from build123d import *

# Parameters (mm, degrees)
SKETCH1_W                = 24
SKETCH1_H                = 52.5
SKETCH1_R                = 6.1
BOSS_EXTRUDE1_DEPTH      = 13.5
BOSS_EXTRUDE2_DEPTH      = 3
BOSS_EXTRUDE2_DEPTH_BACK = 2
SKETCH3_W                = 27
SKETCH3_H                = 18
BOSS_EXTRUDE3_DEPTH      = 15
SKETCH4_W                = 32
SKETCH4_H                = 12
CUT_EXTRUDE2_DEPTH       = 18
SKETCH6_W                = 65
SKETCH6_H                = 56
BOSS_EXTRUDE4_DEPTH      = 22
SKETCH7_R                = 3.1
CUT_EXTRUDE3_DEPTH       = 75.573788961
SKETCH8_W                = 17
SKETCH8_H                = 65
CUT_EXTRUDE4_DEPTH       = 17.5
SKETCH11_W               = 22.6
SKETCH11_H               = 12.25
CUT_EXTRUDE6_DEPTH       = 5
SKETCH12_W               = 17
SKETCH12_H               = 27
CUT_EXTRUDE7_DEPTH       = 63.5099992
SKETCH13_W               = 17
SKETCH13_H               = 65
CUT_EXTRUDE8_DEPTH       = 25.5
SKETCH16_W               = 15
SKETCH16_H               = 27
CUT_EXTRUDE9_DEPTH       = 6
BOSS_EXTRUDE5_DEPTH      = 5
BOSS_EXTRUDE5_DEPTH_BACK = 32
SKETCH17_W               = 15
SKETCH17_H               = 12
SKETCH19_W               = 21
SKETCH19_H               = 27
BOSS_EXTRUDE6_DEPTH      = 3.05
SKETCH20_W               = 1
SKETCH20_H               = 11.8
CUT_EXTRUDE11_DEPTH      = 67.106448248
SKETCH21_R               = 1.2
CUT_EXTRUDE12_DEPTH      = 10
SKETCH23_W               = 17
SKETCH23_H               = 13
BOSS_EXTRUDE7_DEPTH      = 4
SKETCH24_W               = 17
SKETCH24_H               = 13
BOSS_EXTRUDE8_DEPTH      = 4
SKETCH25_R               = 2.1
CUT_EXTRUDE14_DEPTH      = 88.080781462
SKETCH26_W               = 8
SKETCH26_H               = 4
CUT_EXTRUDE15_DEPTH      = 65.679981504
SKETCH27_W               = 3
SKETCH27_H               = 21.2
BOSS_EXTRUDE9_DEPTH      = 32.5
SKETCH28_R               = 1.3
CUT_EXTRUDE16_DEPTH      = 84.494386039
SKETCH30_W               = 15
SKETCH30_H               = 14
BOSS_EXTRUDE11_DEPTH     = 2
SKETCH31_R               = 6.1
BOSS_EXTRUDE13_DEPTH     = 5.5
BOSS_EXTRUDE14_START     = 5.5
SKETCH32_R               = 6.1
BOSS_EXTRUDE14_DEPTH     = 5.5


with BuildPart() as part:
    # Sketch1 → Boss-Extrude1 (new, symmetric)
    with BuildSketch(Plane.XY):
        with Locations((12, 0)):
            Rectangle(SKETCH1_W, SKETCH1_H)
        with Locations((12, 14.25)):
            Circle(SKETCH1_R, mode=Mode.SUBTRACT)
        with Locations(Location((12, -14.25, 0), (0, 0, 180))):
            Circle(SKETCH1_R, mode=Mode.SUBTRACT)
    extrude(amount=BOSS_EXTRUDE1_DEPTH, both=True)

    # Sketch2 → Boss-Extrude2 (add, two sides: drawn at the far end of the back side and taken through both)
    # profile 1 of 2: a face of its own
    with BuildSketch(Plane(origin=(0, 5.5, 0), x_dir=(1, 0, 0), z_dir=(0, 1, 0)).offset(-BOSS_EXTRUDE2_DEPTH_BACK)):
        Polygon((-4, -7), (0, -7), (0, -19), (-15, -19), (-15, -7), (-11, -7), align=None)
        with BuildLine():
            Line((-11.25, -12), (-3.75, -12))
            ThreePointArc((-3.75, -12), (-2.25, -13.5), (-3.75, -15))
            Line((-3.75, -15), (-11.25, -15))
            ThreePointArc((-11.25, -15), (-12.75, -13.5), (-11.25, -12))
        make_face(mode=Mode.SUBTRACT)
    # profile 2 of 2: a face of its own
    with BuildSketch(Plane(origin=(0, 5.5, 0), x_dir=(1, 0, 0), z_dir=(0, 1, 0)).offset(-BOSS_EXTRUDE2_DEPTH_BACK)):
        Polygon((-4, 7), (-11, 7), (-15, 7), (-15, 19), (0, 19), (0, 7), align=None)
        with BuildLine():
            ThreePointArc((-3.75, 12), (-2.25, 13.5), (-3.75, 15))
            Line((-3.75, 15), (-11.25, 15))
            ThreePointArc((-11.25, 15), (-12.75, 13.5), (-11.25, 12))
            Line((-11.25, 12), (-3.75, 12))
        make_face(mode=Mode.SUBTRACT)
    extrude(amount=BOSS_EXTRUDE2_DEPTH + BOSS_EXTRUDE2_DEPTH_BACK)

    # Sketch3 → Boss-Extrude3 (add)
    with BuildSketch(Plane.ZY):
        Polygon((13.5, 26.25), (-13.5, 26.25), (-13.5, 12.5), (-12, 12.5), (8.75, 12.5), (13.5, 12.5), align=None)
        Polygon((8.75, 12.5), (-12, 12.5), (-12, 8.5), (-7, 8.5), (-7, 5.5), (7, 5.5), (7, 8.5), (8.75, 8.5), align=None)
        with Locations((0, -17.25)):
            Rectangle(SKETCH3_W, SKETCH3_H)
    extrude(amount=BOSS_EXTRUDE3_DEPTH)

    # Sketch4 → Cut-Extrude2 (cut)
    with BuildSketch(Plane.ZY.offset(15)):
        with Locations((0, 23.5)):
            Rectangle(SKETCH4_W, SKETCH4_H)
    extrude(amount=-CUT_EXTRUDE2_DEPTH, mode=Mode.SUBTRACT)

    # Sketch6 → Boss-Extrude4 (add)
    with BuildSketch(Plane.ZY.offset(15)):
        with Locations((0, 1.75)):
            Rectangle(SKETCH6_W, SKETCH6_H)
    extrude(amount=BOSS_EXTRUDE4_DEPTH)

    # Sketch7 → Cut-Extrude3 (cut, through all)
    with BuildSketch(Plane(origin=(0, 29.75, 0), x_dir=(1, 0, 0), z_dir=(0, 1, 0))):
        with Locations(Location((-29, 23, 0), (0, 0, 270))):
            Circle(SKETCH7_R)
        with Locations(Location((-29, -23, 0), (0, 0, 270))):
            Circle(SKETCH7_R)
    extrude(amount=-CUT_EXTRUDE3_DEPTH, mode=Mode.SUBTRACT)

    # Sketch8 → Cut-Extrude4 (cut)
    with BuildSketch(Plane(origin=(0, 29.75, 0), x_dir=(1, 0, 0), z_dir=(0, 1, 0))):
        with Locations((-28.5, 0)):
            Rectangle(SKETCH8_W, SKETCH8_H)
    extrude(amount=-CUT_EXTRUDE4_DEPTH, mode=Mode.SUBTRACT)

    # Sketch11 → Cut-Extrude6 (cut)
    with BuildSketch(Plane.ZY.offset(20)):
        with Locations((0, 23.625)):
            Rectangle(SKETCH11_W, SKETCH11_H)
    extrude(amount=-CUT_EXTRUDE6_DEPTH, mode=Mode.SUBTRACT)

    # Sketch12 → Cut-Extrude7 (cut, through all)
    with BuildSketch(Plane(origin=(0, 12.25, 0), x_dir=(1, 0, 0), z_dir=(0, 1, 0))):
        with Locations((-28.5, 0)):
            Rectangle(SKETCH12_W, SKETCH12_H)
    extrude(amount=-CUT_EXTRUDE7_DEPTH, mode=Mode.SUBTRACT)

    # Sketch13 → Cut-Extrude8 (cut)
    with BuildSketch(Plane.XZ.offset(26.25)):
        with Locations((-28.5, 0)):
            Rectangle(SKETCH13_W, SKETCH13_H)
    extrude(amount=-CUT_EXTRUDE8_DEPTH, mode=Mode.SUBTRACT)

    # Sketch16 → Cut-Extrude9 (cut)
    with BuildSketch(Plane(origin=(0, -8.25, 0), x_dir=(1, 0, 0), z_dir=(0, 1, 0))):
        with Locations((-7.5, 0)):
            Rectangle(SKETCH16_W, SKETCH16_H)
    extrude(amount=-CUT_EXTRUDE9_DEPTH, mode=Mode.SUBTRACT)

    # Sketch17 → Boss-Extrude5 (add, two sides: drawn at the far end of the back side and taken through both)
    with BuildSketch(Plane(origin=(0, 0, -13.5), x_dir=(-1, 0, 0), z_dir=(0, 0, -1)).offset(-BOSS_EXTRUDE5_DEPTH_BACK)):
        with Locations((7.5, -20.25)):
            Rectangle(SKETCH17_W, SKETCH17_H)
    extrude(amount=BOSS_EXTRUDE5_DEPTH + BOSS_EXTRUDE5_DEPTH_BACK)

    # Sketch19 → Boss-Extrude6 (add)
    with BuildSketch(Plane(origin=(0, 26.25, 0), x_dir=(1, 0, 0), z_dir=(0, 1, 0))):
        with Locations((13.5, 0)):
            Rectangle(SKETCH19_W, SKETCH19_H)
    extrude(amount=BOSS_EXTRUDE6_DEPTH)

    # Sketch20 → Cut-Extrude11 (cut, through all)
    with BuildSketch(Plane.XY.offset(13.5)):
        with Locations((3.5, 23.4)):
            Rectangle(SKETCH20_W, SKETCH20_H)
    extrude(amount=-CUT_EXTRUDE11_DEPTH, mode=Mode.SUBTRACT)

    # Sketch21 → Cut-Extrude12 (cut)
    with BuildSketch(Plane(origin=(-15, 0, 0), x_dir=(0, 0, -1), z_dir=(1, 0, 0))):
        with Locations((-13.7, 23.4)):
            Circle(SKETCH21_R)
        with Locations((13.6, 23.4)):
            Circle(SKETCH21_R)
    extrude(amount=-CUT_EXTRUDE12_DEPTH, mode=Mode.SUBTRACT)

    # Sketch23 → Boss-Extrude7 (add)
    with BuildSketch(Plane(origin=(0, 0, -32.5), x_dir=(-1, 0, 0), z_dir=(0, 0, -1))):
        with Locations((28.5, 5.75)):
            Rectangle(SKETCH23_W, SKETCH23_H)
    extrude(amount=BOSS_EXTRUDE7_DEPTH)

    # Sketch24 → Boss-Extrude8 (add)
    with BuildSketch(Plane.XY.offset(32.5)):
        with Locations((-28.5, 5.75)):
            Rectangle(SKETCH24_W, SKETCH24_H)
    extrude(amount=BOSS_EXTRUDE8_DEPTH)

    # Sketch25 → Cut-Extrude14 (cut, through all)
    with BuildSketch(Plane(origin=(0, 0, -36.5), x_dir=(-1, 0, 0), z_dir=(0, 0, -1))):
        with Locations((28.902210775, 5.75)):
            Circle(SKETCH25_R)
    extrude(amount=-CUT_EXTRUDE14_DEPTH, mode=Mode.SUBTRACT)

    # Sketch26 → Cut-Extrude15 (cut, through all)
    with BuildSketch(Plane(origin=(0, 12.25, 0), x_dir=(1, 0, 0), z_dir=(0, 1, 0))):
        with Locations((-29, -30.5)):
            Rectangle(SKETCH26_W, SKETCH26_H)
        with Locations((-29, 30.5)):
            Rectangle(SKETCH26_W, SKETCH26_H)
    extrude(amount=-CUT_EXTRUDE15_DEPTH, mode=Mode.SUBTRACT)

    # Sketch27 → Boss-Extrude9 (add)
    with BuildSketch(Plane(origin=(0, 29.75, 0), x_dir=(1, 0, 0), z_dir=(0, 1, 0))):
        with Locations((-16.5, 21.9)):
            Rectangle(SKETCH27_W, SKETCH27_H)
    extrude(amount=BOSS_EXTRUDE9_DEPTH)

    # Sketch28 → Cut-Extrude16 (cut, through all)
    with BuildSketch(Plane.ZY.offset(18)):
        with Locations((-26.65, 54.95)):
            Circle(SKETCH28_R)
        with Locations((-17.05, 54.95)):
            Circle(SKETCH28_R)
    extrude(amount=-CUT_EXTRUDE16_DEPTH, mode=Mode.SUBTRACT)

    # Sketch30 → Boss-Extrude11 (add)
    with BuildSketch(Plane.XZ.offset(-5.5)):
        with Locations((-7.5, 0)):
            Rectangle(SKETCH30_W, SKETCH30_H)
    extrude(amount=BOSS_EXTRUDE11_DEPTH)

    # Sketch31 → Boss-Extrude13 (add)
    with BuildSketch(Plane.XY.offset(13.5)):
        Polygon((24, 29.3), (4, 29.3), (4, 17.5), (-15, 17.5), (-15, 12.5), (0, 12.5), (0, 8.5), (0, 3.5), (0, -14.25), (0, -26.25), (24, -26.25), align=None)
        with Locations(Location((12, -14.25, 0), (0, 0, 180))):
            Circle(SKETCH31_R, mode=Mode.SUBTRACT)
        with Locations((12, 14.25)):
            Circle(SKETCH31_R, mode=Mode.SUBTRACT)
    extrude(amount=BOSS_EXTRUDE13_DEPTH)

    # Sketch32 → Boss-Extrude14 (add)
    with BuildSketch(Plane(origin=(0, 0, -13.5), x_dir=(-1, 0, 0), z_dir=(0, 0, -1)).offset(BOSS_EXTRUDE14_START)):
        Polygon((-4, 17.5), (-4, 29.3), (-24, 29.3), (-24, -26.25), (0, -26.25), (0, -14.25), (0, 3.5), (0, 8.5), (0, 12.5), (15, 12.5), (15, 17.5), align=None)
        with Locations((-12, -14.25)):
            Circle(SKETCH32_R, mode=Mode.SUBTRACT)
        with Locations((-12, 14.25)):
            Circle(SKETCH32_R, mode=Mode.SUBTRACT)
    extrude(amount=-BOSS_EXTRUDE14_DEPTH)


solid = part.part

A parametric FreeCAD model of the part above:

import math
import FreeCAD as App
import Part
import Sketcher
from FreeCAD import Vector
Q = App.Units.Quantity


def add_polygon(sketch, points):
    """Adds a closed chain of lines whose ends are joined by coincident constraints."""
    first, n = sketch.GeometryCount, len(points)
    for a, b in zip(points, points[1:] + points[:1]):
        sketch.addGeometry(Part.LineSegment(App.Vector(*a, 0), App.Vector(*b, 0)), False)
    for i in range(n):
        sketch.addConstraint(Sketcher.Constraint("Coincident", first + i, 2, first + (i + 1) % n, 1))

doc = App.newDocument("Part")
body = doc.addObject("PartDesign::Body", "Body")

sketch1 = doc.addObject("Sketcher::SketchObject", "Sketch")
body.addObject(sketch1)
sketch1.AttachmentSupport = (doc.XY_Plane, [""])
sketch1.MapMode = "FlatFace"
add_polygon(sketch1, [(0, 26.25), (0, -26.25), (24, -26.25), (24, 26.25)])
sketch1.addGeometry(Part.Circle(Vector(12, -14.25, 0), Vector(0, 0, 1), 6.1), False)
sketch1.addGeometry(Part.Circle(Vector(12, 14.25, 0), Vector(0, 0, 1), 6.1), False)
sketch1.addConstraint([
    Sketcher.Constraint("Vertical", 0),
    Sketcher.Constraint("Horizontal", 1),
    Sketcher.Constraint("Vertical", 2),
    Sketcher.Constraint("Horizontal", 3),
    Sketcher.Constraint("Equal", 4, 5),
    Sketcher.Constraint("Symmetric", 0, 2, 3, 2, -1, 1),
    Sketcher.Constraint("Symmetric", 4, 3, 5, 3, -1),
    Sketcher.Constraint("Diameter", 4, Q("12.2 mm")),
    Sketcher.Constraint("DistanceX", 1, 1, 1, 2, Q("24 mm")),
    Sketcher.Constraint("DistanceY", 0, 2, 0, 1, Q("52.5 mm")),
    Sketcher.Constraint("DistanceX", -1, 1, 4, 3, Q("12 mm")),
    Sketcher.Constraint("DistanceY", 0, 2, 4, 3, Q("12 mm")),
])
pad1 = doc.addObject("PartDesign::Pad", "Pad")
body.addObject(pad1)
pad1.Profile = sketch1
pad1.Length = 27
pad1.Midplane = True

sketch2 = doc.addObject("Sketcher::SketchObject", "Sketch001")
body.addObject(sketch2)
sketch2.AttachmentSupport = (doc.XZ_Plane, [""])
sketch2.MapMode = "FlatFace"
sketch2.AttachmentOffset = App.Placement(Vector(0, 0, -5.5), App.Rotation())
add_polygon(sketch2, [(0, 7), (-15, 7), (-15, 19), (0, 19)])
sketch2.addGeometry(Part.LineSegment(Vector(-11.25, 12, 0), Vector(-3.75, 12, 0)), False)
sketch2.addGeometry(Part.ArcOfCircle(Part.Circle(Vector(-3.75, 13.5, 0), Vector(0, 0, 1), 1.5), math.radians(-90), math.radians(90)), False)
sketch2.addGeometry(Part.LineSegment(Vector(-3.75, 15, 0), Vector(-11.25, 15, 0)), False)
sketch2.addGeometry(Part.ArcOfCircle(Part.Circle(Vector(-11.25, 13.5, 0), Vector(0, 0, 1), 1.5), math.radians(90), math.radians(270)), False)
add_polygon(sketch2, [(-15, -7), (0, -7), (0, -19), (-15, -19)])
sketch2.addGeometry(Part.LineSegment(Vector(-3.75, -12, 0), Vector(-11.25, -12, 0)), False)
sketch2.addGeometry(Part.ArcOfCircle(Part.Circle(Vector(-11.25, -13.5, 0), Vector(0, 0, 1), 1.5), math.radians(90), math.radians(270)), False)
sketch2.addGeometry(Part.LineSegment(Vector(-11.25, -15, 0), Vector(-3.75, -15, 0)), False)
sketch2.addGeometry(Part.ArcOfCircle(Part.Circle(Vector(-3.75, -13.5, 0), Vector(0, 0, 1), 1.5), math.radians(-90), math.radians(90)), False)
sketch2.addConstraint([
    Sketcher.Constraint("Tangent", 4, 2, 5, 1),
    Sketcher.Constraint("Tangent", 5, 2, 6, 1),
    Sketcher.Constraint("Tangent", 6, 2, 7, 1),
    Sketcher.Constraint("Tangent", 7, 2, 4, 1),
    Sketcher.Constraint("Tangent", 12, 2, 13, 1),
    Sketcher.Constraint("Tangent", 13, 2, 14, 1),
    Sketcher.Constraint("Tangent", 14, 2, 15, 1),
    Sketcher.Constraint("Tangent", 15, 2, 12, 1),
    Sketcher.Constraint("Horizontal", 0),
    Sketcher.Constraint("Vertical", 1),
    Sketcher.Constraint("Horizontal", 2),
    Sketcher.Constraint("Vertical", 3),
    Sketcher.Constraint("Horizontal", 4),
    Sketcher.Constraint("Horizontal", 6),
    Sketcher.Constraint("Horizontal", 8),
    Sketcher.Constraint("Vertical", 9),
    Sketcher.Constraint("Horizontal", 10),
    Sketcher.Constraint("Vertical", 11),
    Sketcher.Constraint("Horizontal", 12),
    Sketcher.Constraint("Horizontal", 14),
    Sketcher.Constraint("Equal", 7, 13),
    Sketcher.Constraint("Symmetric", 3, 2, 8, 2, -1, 1),
    Sketcher.Constraint("Symmetric", 7, 3, 13, 3, -1),
    Sketcher.Constraint("Symmetric", 2, 2, 9, 2, -1),
    Sketcher.Constraint("Vertical", 5, 3, 15, 3),
    Sketcher.Constraint("Vertical", 1, 2, 10, 2),
    Sketcher.Constraint("Radius", 5, Q("1.5 mm")),
    Sketcher.Constraint("DistanceX", 0, 2, 0, 1, Q("15 mm")),
    Sketcher.Constraint("DistanceY", 1, 1, 1, 2, Q("12 mm")),
    Sketcher.Constraint("DistanceX", 4, 1, 4, 2, Q("7.5 mm")),
    Sketcher.Constraint("DistanceY", -1, 1, 0, 2, Q("7 mm")),
    Sketcher.Constraint("DistanceY", -1, 1, 4, 2, Q("12 mm")),
    Sketcher.Constraint("DistanceX", 5, 3, -1, 1, Q("3.75 mm")),
])
pad2 = doc.addObject("PartDesign::Pad", "Pad001")
body.addObject(pad2)
pad2.Profile = sketch2
pad2.Type = "TwoLengths"
pad2.Length = 3
pad2.Length2 = 2
pad2.Reversed = True

sketch3 = doc.addObject("Sketcher::SketchObject", "Sketch002")
body.addObject(sketch3)
sketch3.AttachmentSupport = (doc.YZ_Plane, [""])
sketch3.MapMode = "FlatFace"
add_polygon(sketch3, [(26.25, 13.5), (26.25, -13.5), (12.5, -13.5), (12.5, -12), (8.5, -12), (8.5, -7), (5.5, -7), (5.5, 7), (8.5, 7), (8.5, 8.75), (12.5, 8.75), (12.5, 13.5)])
add_polygon(sketch3, [(-8.25, -13.5), (-26.25, -13.5), (-26.25, 13.5), (-8.25, 13.5)])
sketch3.addConstraint([
    Sketcher.Constraint("Vertical", 0),
    Sketcher.Constraint("Horizontal", 1),
    Sketcher.Constraint("Vertical", 2),
    Sketcher.Constraint("Horizontal", 3),
    Sketcher.Constraint("Vertical", 4),
    Sketcher.Constraint("Horizontal", 5),
    Sketcher.Constraint("Vertical", 6),
    Sketcher.Constraint("Horizontal", 7),
    Sketcher.Constraint("Vertical", 8),
    Sketcher.Constraint("Horizontal", 9),
    Sketcher.Constraint("Vertical", 10),
    Sketcher.Constraint("Horizontal", 11),
    Sketcher.Constraint("Horizontal", 12),
    Sketcher.Constraint("Vertical", 13),
    Sketcher.Constraint("Horizontal", 14),
    Sketcher.Constraint("Vertical", 15),
    Sketcher.Constraint("Symmetric", 11, 2, 12, 2, -1, 1),
    Sketcher.Constraint("Symmetric", 4, 2, 7, 2, -1),
    Sketcher.Constraint("Symmetric", 1, 2, 10, 2, -1),
    Sketcher.Constraint("Horizontal", 11, 2, 13, 2),
    Sketcher.Constraint("DistanceX", 3, 2, 3, 1, Q("4 mm")),
    Sketcher.Constraint("DistanceX", 5, 2, 5, 1, Q("3 mm")),
    Sketcher.Constraint("DistanceX", 12, 2, 12, 1, Q("18 mm")),
    Sketcher.Constraint("DistanceY", 0, 2, 0, 1, Q("27 mm")),
    Sketcher.Constraint("DistanceY", 4, 1, 4, 2, Q("5 mm")),
    Sketcher.Constraint("DistanceY", 6, 1, 6, 2, Q("14 mm")),
    Sketcher.Constraint("DistanceX", 1, 2, 1, 1, Q("13.75 mm")),
    Sketcher.Constraint("DistanceY", 8, 1, 8, 2, Q("1.75 mm")),
    Sketcher.Constraint("DistanceX", -1, 1, 1, 2, Q("12.5 mm")),
])
pad3 = doc.addObject("PartDesign::Pad", "Pad002")
body.addObject(pad3)
pad3.Profile = sketch3
pad3.Length = 15
pad3.Reversed = True

sketch4 = doc.addObject("Sketcher::SketchObject", "Sketch003")
body.addObject(sketch4)
sketch4.AttachmentSupport = (doc.YZ_Plane, [""])
sketch4.MapMode = "FlatFace"
sketch4.AttachmentOffset = App.Placement(Vector(0, 0, -15), App.Rotation())
add_polygon(sketch4, [(29.5, -16), (17.5, -16), (17.5, 16), (29.5, 16)])
sketch4.addConstraint([
    Sketcher.Constraint("Horizontal", 0),
    Sketcher.Constraint("Vertical", 1),
    Sketcher.Constraint("Horizontal", 2),
    Sketcher.Constraint("Vertical", 3),
    Sketcher.Constraint("DistanceX", 0, 2, 0, 1, Q("12 mm")),
    Sketcher.Constraint("DistanceY", 1, 1, 1, 2, Q("32 mm")),
    Sketcher.Constraint("DistanceY", 0, 2, -1, 1, Q("16 mm")),
    Sketcher.Constraint("DistanceX", -1, 1, 0, 2, Q("17.5 mm")),
])
pocket1 = doc.addObject("PartDesign::Pocket", "Pocket")
body.addObject(pocket1)
pocket1.Profile = sketch4
pocket1.Length = 18
pocket1.Reversed = True

sketch5 = doc.addObject("Sketcher::SketchObject", "Sketch004")
body.addObject(sketch5)
sketch5.AttachmentSupport = (doc.YZ_Plane, [""])
sketch5.MapMode = "FlatFace"
sketch5.AttachmentOffset = App.Placement(Vector(0, 0, -15), App.Rotation())
add_polygon(sketch5, [(29.75, -32.5), (-26.25, -32.5), (-26.25, 32.5), (29.75, 32.5)])
sketch5.addConstraint([
    Sketcher.Constraint("Horizontal", 0),
    Sketcher.Constraint("Vertical", 1),
    Sketcher.Constraint("Horizontal", 2),
    Sketcher.Constraint("Vertical", 3),
    Sketcher.Constraint("DistanceX", 0, 2, 0, 1, Q("56 mm")),
    Sketcher.Constraint("DistanceY", 1, 1, 1, 2, Q("65 mm")),
    Sketcher.Constraint("DistanceY", 0, 2, -1, 1, Q("32.5 mm")),
    Sketcher.Constraint("DistanceX", 0, 2, -1, 1, Q("26.25 mm")),
])
pad4 = doc.addObject("PartDesign::Pad", "Pad003")
body.addObject(pad4)
pad4.Profile = sketch5
pad4.Length = 22
pad4.Reversed = True

sketch6 = doc.addObject("Sketcher::SketchObject", "Sketch005")
body.addObject(sketch6)
sketch6.AttachmentSupport = (doc.XZ_Plane, [""])
sketch6.MapMode = "FlatFace"
sketch6.AttachmentOffset = App.Placement(Vector(0, 0, -29.75), App.Rotation())
sketch6.addGeometry([
    Part.Circle(Vector(-29, -23, 0), Vector(0, 0, 1), 3.1),
    Part.Circle(Vector(-29, 23, 0), Vector(0, 0, 1), 3.1),
], False)
sketch6.addConstraint([
    Sketcher.Constraint("Equal", 0, 1),
    Sketcher.Constraint("Symmetric", 0, 3, 1, 3, -1),
    Sketcher.Constraint("Diameter", 0, Q("6.2 mm")),
    Sketcher.Constraint("DistanceX", 0, 3, -1, 1, Q("29 mm")),
    Sketcher.Constraint("DistanceY", 0, 3, -1, 1, Q("23 mm")),
])
pocket2 = doc.addObject("PartDesign::Pocket", "Pocket001")
body.addObject(pocket2)
pocket2.Profile = sketch6
pocket2.Type = "ThroughAll"
pocket2.Reversed = True

sketch7 = doc.addObject("Sketcher::SketchObject", "Sketch006")
body.addObject(sketch7)
sketch7.AttachmentSupport = (doc.XZ_Plane, [""])
sketch7.MapMode = "FlatFace"
sketch7.AttachmentOffset = App.Placement(Vector(0, 0, -29.75), App.Rotation())
add_polygon(sketch7, [(-37, -32.5), (-37, 32.5), (-20, 32.5), (-20, -32.5)])
sketch7.addConstraint([
    Sketcher.Constraint("Vertical", 0),
    Sketcher.Constraint("Horizontal", 1),
    Sketcher.Constraint("Vertical", 2),
    Sketcher.Constraint("Horizontal", 3),
    Sketcher.Constraint("DistanceX", 1, 1, 1, 2, Q("17 mm")),
    Sketcher.Constraint("DistanceY", 0, 1, 0, 2, Q("65 mm")),
    Sketcher.Constraint("DistanceX", 0, 2, -1, 1, Q("37 mm")),
    Sketcher.Constraint("DistanceY", -1, 1, 0, 2, Q("32.5 mm")),
])
pocket3 = doc.addObject("PartDesign::Pocket", "Pocket002")
body.addObject(pocket3)
pocket3.Profile = sketch7
pocket3.Length = 17.5
pocket3.Reversed = True

sketch8 = doc.addObject("Sketcher::SketchObject", "Sketch007")
body.addObject(sketch8)
sketch8.AttachmentSupport = (doc.YZ_Plane, [""])
sketch8.MapMode = "FlatFace"
sketch8.AttachmentOffset = App.Placement(Vector(0, 0, -20), App.Rotation())
add_polygon(sketch8, [(29.75, -11.3), (17.5, -11.3), (17.5, 11.3), (29.75, 11.3)])
sketch8.addConstraint([
    Sketcher.Constraint("Horizontal", 0),
    Sketcher.Constraint("Vertical", 1),
    Sketcher.Constraint("Horizontal", 2),
    Sketcher.Constraint("Vertical", 3),
    Sketcher.Constraint("DistanceY", 1, 1, 1, 2, Q("22.6 mm")),
    Sketcher.Constraint("DistanceX", 0, 2, 0, 1, Q("12.25 mm")),
    Sketcher.Constraint("DistanceX", -1, 1, 0, 2, Q("17.5 mm")),
    Sketcher.Constraint("DistanceY", 0, 2, -1, 1, Q("11.3 mm")),
])
pocket4 = doc.addObject("PartDesign::Pocket", "Pocket003")
body.addObject(pocket4)
pocket4.Profile = sketch8
pocket4.Length = 5
pocket4.Reversed = True

sketch9 = doc.addObject("Sketcher::SketchObject", "Sketch008")
body.addObject(sketch9)
sketch9.AttachmentSupport = (doc.XZ_Plane, [""])
sketch9.MapMode = "FlatFace"
sketch9.AttachmentOffset = App.Placement(Vector(0, 0, -12.25), App.Rotation())
add_polygon(sketch9, [(-37, -13.5), (-37, 13.5), (-20, 13.5), (-20, -13.5)])
sketch9.addConstraint([
    Sketcher.Constraint("Vertical", 0),
    Sketcher.Constraint("Horizontal", 1),
    Sketcher.Constraint("Vertical", 2),
    Sketcher.Constraint("Horizontal", 3),
    Sketcher.Constraint("DistanceX", 1, 1, 1, 2, Q("17 mm")),
    Sketcher.Constraint("DistanceY", 0, 1, 0, 2, Q("27 mm")),
    Sketcher.Constraint("DistanceX", 0, 2, -1, 1, Q("37 mm")),
    Sketcher.Constraint("DistanceY", -1, 1, 0, 2, Q("13.5 mm")),
])
pocket5 = doc.addObject("PartDesign::Pocket", "Pocket004")
body.addObject(pocket5)
pocket5.Profile = sketch9
pocket5.Type = "ThroughAll"
pocket5.Reversed = True

sketch10 = doc.addObject("Sketcher::SketchObject", "Sketch009")
body.addObject(sketch10)
sketch10.AttachmentSupport = (doc.XZ_Plane, [""])
sketch10.MapMode = "FlatFace"
sketch10.AttachmentOffset = App.Placement(Vector(0, 0, 26.25), App.Rotation())
add_polygon(sketch10, [(-37, 32.5), (-37, -32.5), (-20, -32.5), (-20, 32.5)])
sketch10.addConstraint([
    Sketcher.Constraint("Vertical", 0),
    Sketcher.Constraint("Horizontal", 1),
    Sketcher.Constraint("Vertical", 2),
    Sketcher.Constraint("Horizontal", 3),
    Sketcher.Constraint("DistanceX", 1, 1, 1, 2, Q("17 mm")),
    Sketcher.Constraint("DistanceY", 0, 2, 0, 1, Q("65 mm")),
    Sketcher.Constraint("DistanceX", 0, 2, -1, 1, Q("37 mm")),
    Sketcher.Constraint("DistanceY", 0, 2, -1, 1, Q("32.5 mm")),
])
pocket6 = doc.addObject("PartDesign::Pocket", "Pocket005")
body.addObject(pocket6)
pocket6.Profile = sketch10
pocket6.Length = 25.5

sketch11 = doc.addObject("Sketcher::SketchObject", "Sketch010")
body.addObject(sketch11)
sketch11.AttachmentSupport = (doc.XZ_Plane, [""])
sketch11.MapMode = "FlatFace"
sketch11.AttachmentOffset = App.Placement(Vector(0, 0, 8.25), App.Rotation())
add_polygon(sketch11, [(-15, -13.5), (-15, 13.5), (0, 13.5), (0, -13.5)])
sketch11.addConstraint([
    Sketcher.Constraint("Vertical", 0),
    Sketcher.Constraint("Horizontal", 1),
    Sketcher.Constraint("Vertical", 2),
    Sketcher.Constraint("Horizontal", 3),
    Sketcher.Constraint("Symmetric", 1, 2, 2, 2, -1, 1),
    Sketcher.Constraint("DistanceX", 1, 1, 1, 2, Q("15 mm")),
    Sketcher.Constraint("DistanceY", 0, 1, 0, 2, Q("27 mm")),
])
pocket7 = doc.addObject("PartDesign::Pocket", "Pocket006")
body.addObject(pocket7)
pocket7.Profile = sketch11
pocket7.Length = 6
pocket7.Reversed = True

sketch12 = doc.addObject("Sketcher::SketchObject", "Sketch011")
body.addObject(sketch12)
sketch12.AttachmentSupport = (doc.XY_Plane, [""])
sketch12.MapMode = "FlatFace"
sketch12.AttachmentOffset = App.Placement(Vector(0, 0, -13.5), App.Rotation())
add_polygon(sketch12, [(0, -14.25), (0, -26.25), (-15, -26.25), (-15, -14.25)])
sketch12.addConstraint([
    Sketcher.Constraint("Vertical", 0),
    Sketcher.Constraint("Horizontal", 1),
    Sketcher.Constraint("Vertical", 2),
    Sketcher.Constraint("Horizontal", 3),
    Sketcher.Constraint("PointOnObject", 0, 2, -2),
    Sketcher.Constraint("DistanceX", 1, 2, 1, 1, Q("15 mm")),
    Sketcher.Constraint("DistanceY", 0, 2, 0, 1, Q("12 mm")),
    Sketcher.Constraint("DistanceY", 0, 2, -1, 1, Q("26.25 mm")),
])
pad5 = doc.addObject("PartDesign::Pad", "Pad004")
body.addObject(pad5)
pad5.Profile = sketch12
pad5.Type = "TwoLengths"
pad5.Length = 5
pad5.Length2 = 32
pad5.Reversed = True

sketch13 = doc.addObject("Sketcher::SketchObject", "Sketch012")
body.addObject(sketch13)
sketch13.AttachmentSupport = (doc.XZ_Plane, [""])
sketch13.MapMode = "FlatFace"
sketch13.AttachmentOffset = App.Placement(Vector(0, 0, -26.25), App.Rotation())
add_polygon(sketch13, [(3, -13.5), (3, 13.5), (24, 13.5), (24, -13.5)])
sketch13.addConstraint([
    Sketcher.Constraint("Vertical", 0),
    Sketcher.Constraint("Horizontal", 1),
    Sketcher.Constraint("Vertical", 2),
    Sketcher.Constraint("Horizontal", 3),
    Sketcher.Constraint("DistanceX", 1, 1, 1, 2, Q("21 mm")),
    Sketcher.Constraint("DistanceY", 0, 1, 0, 2, Q("27 mm")),
    Sketcher.Constraint("DistanceX", -1, 1, 0, 2, Q("3 mm")),
    Sketcher.Constraint("DistanceY", -1, 1, 0, 2, Q("13.5 mm")),
])
pad6 = doc.addObject("PartDesign::Pad", "Pad005")
body.addObject(pad6)
pad6.Profile = sketch13
pad6.Length = 3.05
pad6.Reversed = True

sketch14 = doc.addObject("Sketcher::SketchObject", "Sketch013")
body.addObject(sketch14)
sketch14.AttachmentSupport = (doc.XY_Plane, [""])
sketch14.MapMode = "FlatFace"
sketch14.AttachmentOffset = App.Placement(Vector(0, 0, 13.5), App.Rotation())
add_polygon(sketch14, [(3, 29.3), (3, 17.5), (4, 17.5), (4, 29.3)])
sketch14.addConstraint([
    Sketcher.Constraint("Vertical", 0),
    Sketcher.Constraint("Horizontal", 1),
    Sketcher.Constraint("Vertical", 2),
    Sketcher.Constraint("Horizontal", 3),
    Sketcher.Constraint("DistanceX", 1, 1, 1, 2, Q("1 mm")),
    Sketcher.Constraint("DistanceY", 0, 2, 0, 1, Q("11.8 mm")),
    Sketcher.Constraint("DistanceX", -1, 1, 0, 2, Q("3 mm")),
    Sketcher.Constraint("DistanceY", -1, 1, 0, 2, Q("17.5 mm")),
])
pocket8 = doc.addObject("PartDesign::Pocket", "Pocket007")
body.addObject(pocket8)
pocket8.Profile = sketch14
pocket8.Type = "ThroughAll"

sketch15 = doc.addObject("Sketcher::SketchObject", "Sketch014")
body.addObject(sketch15)
sketch15.AttachmentSupport = (doc.YZ_Plane, [""])
sketch15.MapMode = "FlatFace"
sketch15.AttachmentOffset = App.Placement(Vector(0, 0, -15), App.Rotation())
sketch15.addGeometry([
    Part.Circle(Vector(23.4, 13.7, 0), Vector(0, 0, 1), 1.2),
    Part.Circle(Vector(23.4, -13.6, 0), Vector(0, 0, 1), 1.2),
], False)
sketch15.addConstraint([
    Sketcher.Constraint("Equal", 0, 1),
    Sketcher.Constraint("Vertical", 0, 3, 1, 3),
    Sketcher.Constraint("Diameter", 0, Q("2.4 mm")),
    Sketcher.Constraint("DistanceX", -1, 1, 0, 3, Q("23.4 mm")),
    Sketcher.Constraint("DistanceY", -1, 1, 0, 3, Q("13.7 mm")),
    Sketcher.Constraint("DistanceY", 1, 3, -1, 1, Q("13.6 mm")),
])
pocket9 = doc.addObject("PartDesign::Pocket", "Pocket008")
body.addObject(pocket9)
pocket9.Profile = sketch15
pocket9.Length = 10

sketch16 = doc.addObject("Sketcher::SketchObject", "Sketch015")
body.addObject(sketch16)
sketch16.AttachmentSupport = (doc.XY_Plane, [""])
sketch16.MapMode = "FlatFace"
sketch16.AttachmentOffset = App.Placement(Vector(0, 0, -32.5), App.Rotation())
add_polygon(sketch16, [(-20, 12.25), (-20, -0.75), (-37, -0.75), (-37, 12.25)])
sketch16.addConstraint([
    Sketcher.Constraint("Vertical", 0),
    Sketcher.Constraint("Horizontal", 1),
    Sketcher.Constraint("Vertical", 2),
    Sketcher.Constraint("Horizontal", 3),
    Sketcher.Constraint("DistanceX", 1, 2, 1, 1, Q("17 mm")),
    Sketcher.Constraint("DistanceY", 0, 2, 0, 1, Q("13 mm")),
    Sketcher.Constraint("DistanceX", 0, 2, -1, 1, Q("20 mm")),
    Sketcher.Constraint("DistanceY", 0, 2, -1, 1, Q("0.75 mm")),
])
pad7 = doc.addObject("PartDesign::Pad", "Pad006")
body.addObject(pad7)
pad7.Profile = sketch16
pad7.Length = 4
pad7.Reversed = True

sketch17 = doc.addObject("Sketcher::SketchObject", "Sketch016")
body.addObject(sketch17)
sketch17.AttachmentSupport = (doc.XY_Plane, [""])
sketch17.MapMode = "FlatFace"
sketch17.AttachmentOffset = App.Placement(Vector(0, 0, 32.5), App.Rotation())
add_polygon(sketch17, [(-37, 12.25), (-37, -0.75), (-20, -0.75), (-20, 12.25)])
sketch17.addConstraint([
    Sketcher.Constraint("Vertical", 0),
    Sketcher.Constraint("Horizontal", 1),
    Sketcher.Constraint("Vertical", 2),
    Sketcher.Constraint("Horizontal", 3),
    Sketcher.Constraint("DistanceX", 1, 1, 1, 2, Q("17 mm")),
    Sketcher.Constraint("DistanceY", 0, 2, 0, 1, Q("13 mm")),
    Sketcher.Constraint("DistanceX", 0, 2, -1, 1, Q("37 mm")),
    Sketcher.Constraint("DistanceY", 0, 2, -1, 1, Q("0.75 mm")),
])
pad8 = doc.addObject("PartDesign::Pad", "Pad007")
body.addObject(pad8)
pad8.Profile = sketch17
pad8.Length = 4

sketch18 = doc.addObject("Sketcher::SketchObject", "Sketch017")
body.addObject(sketch18)
sketch18.AttachmentSupport = (doc.XY_Plane, [""])
sketch18.MapMode = "FlatFace"
sketch18.AttachmentOffset = App.Placement(Vector(0, 0, -36.5), App.Rotation())
sketch18.addGeometry(Part.Circle(Vector(-28.902211, 5.75, 0), Vector(0, 0, 1), 2.1), False)
sketch18.addConstraint([
    Sketcher.Constraint("Diameter", 0, Q("4.2 mm")),
    Sketcher.Constraint("DistanceY", -1, 1, 0, 3, Q("5.75 mm")),
    Sketcher.Constraint("DistanceX", 0, 3, -1, 1, Q("28.902211 mm")),
])
pocket10 = doc.addObject("PartDesign::Pocket", "Pocket009")
body.addObject(pocket10)
pocket10.Profile = sketch18
pocket10.Type = "ThroughAll"
pocket10.Reversed = True

sketch19 = doc.addObject("Sketcher::SketchObject", "Sketch018")
body.addObject(sketch19)
sketch19.AttachmentSupport = (doc.XZ_Plane, [""])
sketch19.MapMode = "FlatFace"
sketch19.AttachmentOffset = App.Placement(Vector(0, 0, -12.25), App.Rotation())
add_polygon(sketch19, [(-33, 28.5), (-33, 32.5), (-25, 32.5), (-25, 28.5)])
add_polygon(sketch19, [(-33, -32.5), (-33, -28.5), (-25, -28.5), (-25, -32.5)])
sketch19.addConstraint([
    Sketcher.Constraint("Vertical", 0),
    Sketcher.Constraint("Horizontal", 1),
    Sketcher.Constraint("Vertical", 2),
    Sketcher.Constraint("Horizontal", 3),
    Sketcher.Constraint("Vertical", 4),
    Sketcher.Constraint("Horizontal", 5),
    Sketcher.Constraint("Vertical", 6),
    Sketcher.Constraint("Horizontal", 7),
    Sketcher.Constraint("Symmetric", 3, 2, 4, 2, -1),
    Sketcher.Constraint("Symmetric", 1, 2, 6, 2, -1),
    Sketcher.Constraint("DistanceX", 1, 1, 1, 2, Q("8 mm")),
    Sketcher.Constraint("DistanceY", 0, 1, 0, 2, Q("4 mm")),
    Sketcher.Constraint("DistanceX", 0, 2, -1, 1, Q("33 mm")),
    Sketcher.Constraint("DistanceY", 4, 2, 3, 2, Q("57 mm")),
])
pocket11 = doc.addObject("PartDesign::Pocket", "Pocket010")
body.addObject(pocket11)
pocket11.Profile = sketch19
pocket11.Type = "ThroughAll"
pocket11.Reversed = True

sketch20 = doc.addObject("Sketcher::SketchObject", "Sketch019")
body.addObject(sketch20)
sketch20.AttachmentSupport = (doc.XZ_Plane, [""])
sketch20.MapMode = "FlatFace"
sketch20.AttachmentOffset = App.Placement(Vector(0, 0, -29.75), App.Rotation())
add_polygon(sketch20, [(-18, -32.5), (-18, -11.3), (-15, -11.3), (-15, -32.5)])
sketch20.addConstraint([
    Sketcher.Constraint("Vertical", 0),
    Sketcher.Constraint("Horizontal", 1),
    Sketcher.Constraint("Vertical", 2),
    Sketcher.Constraint("Horizontal", 3),
    Sketcher.Constraint("DistanceX", 1, 1, 1, 2, Q("3 mm")),
    Sketcher.Constraint("DistanceY", 0, 1, 0, 2, Q("21.2 mm")),
    Sketcher.Constraint("DistanceX", 0, 2, -1, 1, Q("18 mm")),
    Sketcher.Constraint("DistanceY", 0, 2, -1, 1, Q("11.3 mm")),
])
pad9 = doc.addObject("PartDesign::Pad", "Pad008")
body.addObject(pad9)
pad9.Profile = sketch20
pad9.Length = 32.5
pad9.Reversed = True

sketch21 = doc.addObject("Sketcher::SketchObject", "Sketch020")
body.addObject(sketch21)
sketch21.AttachmentSupport = (doc.YZ_Plane, [""])
sketch21.MapMode = "FlatFace"
sketch21.AttachmentOffset = App.Placement(Vector(0, 0, -18), App.Rotation())
sketch21.addGeometry([
    Part.Circle(Vector(54.95, -26.65, 0), Vector(0, 0, 1), 1.3),
    Part.Circle(Vector(54.95, -17.05, 0), Vector(0, 0, 1), 1.3),
], False)
sketch21.addConstraint([
    Sketcher.Constraint("Equal", 0, 1),
    Sketcher.Constraint("Vertical", 0, 3, 1, 3),
    Sketcher.Constraint("Diameter", 0, Q("2.6 mm")),
    Sketcher.Constraint("DistanceY", 0, 3, 1, 3, Q("9.6 mm")),
    Sketcher.Constraint("DistanceX", -1, 1, 0, 3, Q("54.95 mm")),
    Sketcher.Constraint("DistanceY", 0, 3, -1, 1, Q("26.65 mm")),
])
pocket12 = doc.addObject("PartDesign::Pocket", "Pocket011")
body.addObject(pocket12)
pocket12.Profile = sketch21
pocket12.Type = "ThroughAll"
pocket12.Reversed = True

sketch22 = doc.addObject("Sketcher::SketchObject", "Sketch021")
body.addObject(sketch22)
sketch22.AttachmentSupport = (doc.XZ_Plane, [""])
sketch22.MapMode = "FlatFace"
sketch22.AttachmentOffset = App.Placement(Vector(0, 0, -5.5), App.Rotation())
add_polygon(sketch22, [(-15, 7), (-15, -7), (0, -7), (0, 7)])
sketch22.addConstraint([
    Sketcher.Constraint("Vertical", 0),
    Sketcher.Constraint("Horizontal", 1),
    Sketcher.Constraint("Vertical", 2),
    Sketcher.Constraint("Horizontal", 3),
    Sketcher.Constraint("Symmetric", 1, 2, 2, 2, -1, 1),
    Sketcher.Constraint("DistanceX", 1, 1, 1, 2, Q("15 mm")),
    Sketcher.Constraint("DistanceY", 0, 2, 0, 1, Q("14 mm")),
])
pad10 = doc.addObject("PartDesign::Pad", "Pad009")
body.addObject(pad10)
pad10.Profile = sketch22
pad10.Length = 2

sketch23 = doc.addObject("Sketcher::SketchObject", "Sketch022")
body.addObject(sketch23)
sketch23.AttachmentSupport = (doc.XY_Plane, [""])
sketch23.MapMode = "FlatFace"
sketch23.AttachmentOffset = App.Placement(Vector(0, 0, 13.5), App.Rotation())
add_polygon(sketch23, [(24, 29.3), (4, 29.3), (4, 17.5), (-15, 17.5), (-15, 12.5), (0, 12.5), (0, -26.25), (24, -26.25)])
sketch23.addGeometry(Part.Circle(Vector(12, -14.25, 0), Vector(0, 0, 1), 6.1), False)
sketch23.addGeometry(Part.Circle(Vector(12, 14.25, 0), Vector(0, 0, 1), 6.1), False)
sketch23.addConstraint([
    Sketcher.Constraint("Horizontal", 0),
    Sketcher.Constraint("Vertical", 1),
    Sketcher.Constraint("Horizontal", 2),
    Sketcher.Constraint("Vertical", 3),
    Sketcher.Constraint("Horizontal", 4),
    Sketcher.Constraint("Vertical", 5),
    Sketcher.Constraint("Horizontal", 6),
    Sketcher.Constraint("Vertical", 7),
    Sketcher.Constraint("Equal", 8, 9),
    Sketcher.Constraint("Symmetric", 8, 3, 9, 3, -1),
    Sketcher.Constraint("PointOnObject", 4, 2, -2),
    Sketcher.Constraint("Diameter", 8, Q("12.2 mm")),
    Sketcher.Constraint("DistanceX", 0, 2, 0, 1, Q("20 mm")),
    Sketcher.Constraint("DistanceX", 2, 2, 2, 1, Q("19 mm")),
    Sketcher.Constraint("DistanceX", 4, 1, 4, 2, Q("15 mm")),
    Sketcher.Constraint("DistanceY", 3, 2, 3, 1, Q("5 mm")),
    Sketcher.Constraint("DistanceY", 1, 2, 1, 1, Q("11.8 mm")),
    Sketcher.Constraint("DistanceX", -1, 1, 8, 3, Q("12 mm")),
    Sketcher.Constraint("DistanceY", 5, 2, 8, 3, Q("12 mm")),
    Sketcher.Constraint("DistanceY", 5, 2, 5, 1, Q("38.75 mm")),
    Sketcher.Constraint("DistanceY", -1, 1, 0, 2, Q("29.3 mm")),
])
pad11 = doc.addObject("PartDesign::Pad", "Pad010")
body.addObject(pad11)
pad11.Profile = sketch23
pad11.Length = 5.5

sketch24 = doc.addObject("Sketcher::SketchObject", "Sketch023")
body.addObject(sketch24)
sketch24.AttachmentSupport = (doc.XY_Plane, [""])
sketch24.MapMode = "FlatFace"
sketch24.AttachmentOffset = App.Placement(Vector(0, 0, -19), App.Rotation())
add_polygon(sketch24, [(4, 17.5), (4, 29.3), (24, 29.3), (24, -26.25), (0, -26.25), (0, 12.5), (-15, 12.5), (-15, 17.5)])
sketch24.addGeometry(Part.Circle(Vector(12, -14.25, 0), Vector(0, 0, 1), 6.1), False)
sketch24.addGeometry(Part.Circle(Vector(12, 14.25, 0), Vector(0, 0, 1), 6.1), False)
sketch24.addConstraint([
    Sketcher.Constraint("Vertical", 0),
    Sketcher.Constraint("Horizontal", 1),
    Sketcher.Constraint("Vertical", 2),
    Sketcher.Constraint("Horizontal", 3),
    Sketcher.Constraint("Vertical", 4),
    Sketcher.Constraint("Horizontal", 5),
    Sketcher.Constraint("Vertical", 6),
    Sketcher.Constraint("Horizontal", 7),
    Sketcher.Constraint("Equal", 8, 9),
    Sketcher.Constraint("Symmetric", 8, 3, 9, 3, -1),
    Sketcher.Constraint("PointOnObject", 3, 2, -2),
    Sketcher.Constraint("Diameter", 8, Q("12.2 mm")),
    Sketcher.Constraint("DistanceX", 1, 1, 1, 2, Q("20 mm")),
    Sketcher.Constraint("DistanceX", 3, 2, 3, 1, Q("24 mm")),
    Sketcher.Constraint("DistanceX", 5, 2, 5, 1, Q("15 mm")),
    Sketcher.Constraint("DistanceY", 6, 1, 6, 2, Q("5 mm")),
    Sketcher.Constraint("DistanceY", 0, 1, 0, 2, Q("11.8 mm")),
    Sketcher.Constraint("DistanceX", -1, 1, 8, 3, Q("12 mm")),
    Sketcher.Constraint("DistanceY", 2, 2, 8, 3, Q("12 mm")),
    Sketcher.Constraint("DistanceY", 2, 2, 2, 1, Q("55.55 mm")),
    Sketcher.Constraint("DistanceY", -1, 1, 0, 2, Q("29.3 mm")),
])
pad12 = doc.addObject("PartDesign::Pad", "Pad011")
body.addObject(pad12)
pad12.Profile = sketch24
pad12.Length = 5.5

doc.recompute()
